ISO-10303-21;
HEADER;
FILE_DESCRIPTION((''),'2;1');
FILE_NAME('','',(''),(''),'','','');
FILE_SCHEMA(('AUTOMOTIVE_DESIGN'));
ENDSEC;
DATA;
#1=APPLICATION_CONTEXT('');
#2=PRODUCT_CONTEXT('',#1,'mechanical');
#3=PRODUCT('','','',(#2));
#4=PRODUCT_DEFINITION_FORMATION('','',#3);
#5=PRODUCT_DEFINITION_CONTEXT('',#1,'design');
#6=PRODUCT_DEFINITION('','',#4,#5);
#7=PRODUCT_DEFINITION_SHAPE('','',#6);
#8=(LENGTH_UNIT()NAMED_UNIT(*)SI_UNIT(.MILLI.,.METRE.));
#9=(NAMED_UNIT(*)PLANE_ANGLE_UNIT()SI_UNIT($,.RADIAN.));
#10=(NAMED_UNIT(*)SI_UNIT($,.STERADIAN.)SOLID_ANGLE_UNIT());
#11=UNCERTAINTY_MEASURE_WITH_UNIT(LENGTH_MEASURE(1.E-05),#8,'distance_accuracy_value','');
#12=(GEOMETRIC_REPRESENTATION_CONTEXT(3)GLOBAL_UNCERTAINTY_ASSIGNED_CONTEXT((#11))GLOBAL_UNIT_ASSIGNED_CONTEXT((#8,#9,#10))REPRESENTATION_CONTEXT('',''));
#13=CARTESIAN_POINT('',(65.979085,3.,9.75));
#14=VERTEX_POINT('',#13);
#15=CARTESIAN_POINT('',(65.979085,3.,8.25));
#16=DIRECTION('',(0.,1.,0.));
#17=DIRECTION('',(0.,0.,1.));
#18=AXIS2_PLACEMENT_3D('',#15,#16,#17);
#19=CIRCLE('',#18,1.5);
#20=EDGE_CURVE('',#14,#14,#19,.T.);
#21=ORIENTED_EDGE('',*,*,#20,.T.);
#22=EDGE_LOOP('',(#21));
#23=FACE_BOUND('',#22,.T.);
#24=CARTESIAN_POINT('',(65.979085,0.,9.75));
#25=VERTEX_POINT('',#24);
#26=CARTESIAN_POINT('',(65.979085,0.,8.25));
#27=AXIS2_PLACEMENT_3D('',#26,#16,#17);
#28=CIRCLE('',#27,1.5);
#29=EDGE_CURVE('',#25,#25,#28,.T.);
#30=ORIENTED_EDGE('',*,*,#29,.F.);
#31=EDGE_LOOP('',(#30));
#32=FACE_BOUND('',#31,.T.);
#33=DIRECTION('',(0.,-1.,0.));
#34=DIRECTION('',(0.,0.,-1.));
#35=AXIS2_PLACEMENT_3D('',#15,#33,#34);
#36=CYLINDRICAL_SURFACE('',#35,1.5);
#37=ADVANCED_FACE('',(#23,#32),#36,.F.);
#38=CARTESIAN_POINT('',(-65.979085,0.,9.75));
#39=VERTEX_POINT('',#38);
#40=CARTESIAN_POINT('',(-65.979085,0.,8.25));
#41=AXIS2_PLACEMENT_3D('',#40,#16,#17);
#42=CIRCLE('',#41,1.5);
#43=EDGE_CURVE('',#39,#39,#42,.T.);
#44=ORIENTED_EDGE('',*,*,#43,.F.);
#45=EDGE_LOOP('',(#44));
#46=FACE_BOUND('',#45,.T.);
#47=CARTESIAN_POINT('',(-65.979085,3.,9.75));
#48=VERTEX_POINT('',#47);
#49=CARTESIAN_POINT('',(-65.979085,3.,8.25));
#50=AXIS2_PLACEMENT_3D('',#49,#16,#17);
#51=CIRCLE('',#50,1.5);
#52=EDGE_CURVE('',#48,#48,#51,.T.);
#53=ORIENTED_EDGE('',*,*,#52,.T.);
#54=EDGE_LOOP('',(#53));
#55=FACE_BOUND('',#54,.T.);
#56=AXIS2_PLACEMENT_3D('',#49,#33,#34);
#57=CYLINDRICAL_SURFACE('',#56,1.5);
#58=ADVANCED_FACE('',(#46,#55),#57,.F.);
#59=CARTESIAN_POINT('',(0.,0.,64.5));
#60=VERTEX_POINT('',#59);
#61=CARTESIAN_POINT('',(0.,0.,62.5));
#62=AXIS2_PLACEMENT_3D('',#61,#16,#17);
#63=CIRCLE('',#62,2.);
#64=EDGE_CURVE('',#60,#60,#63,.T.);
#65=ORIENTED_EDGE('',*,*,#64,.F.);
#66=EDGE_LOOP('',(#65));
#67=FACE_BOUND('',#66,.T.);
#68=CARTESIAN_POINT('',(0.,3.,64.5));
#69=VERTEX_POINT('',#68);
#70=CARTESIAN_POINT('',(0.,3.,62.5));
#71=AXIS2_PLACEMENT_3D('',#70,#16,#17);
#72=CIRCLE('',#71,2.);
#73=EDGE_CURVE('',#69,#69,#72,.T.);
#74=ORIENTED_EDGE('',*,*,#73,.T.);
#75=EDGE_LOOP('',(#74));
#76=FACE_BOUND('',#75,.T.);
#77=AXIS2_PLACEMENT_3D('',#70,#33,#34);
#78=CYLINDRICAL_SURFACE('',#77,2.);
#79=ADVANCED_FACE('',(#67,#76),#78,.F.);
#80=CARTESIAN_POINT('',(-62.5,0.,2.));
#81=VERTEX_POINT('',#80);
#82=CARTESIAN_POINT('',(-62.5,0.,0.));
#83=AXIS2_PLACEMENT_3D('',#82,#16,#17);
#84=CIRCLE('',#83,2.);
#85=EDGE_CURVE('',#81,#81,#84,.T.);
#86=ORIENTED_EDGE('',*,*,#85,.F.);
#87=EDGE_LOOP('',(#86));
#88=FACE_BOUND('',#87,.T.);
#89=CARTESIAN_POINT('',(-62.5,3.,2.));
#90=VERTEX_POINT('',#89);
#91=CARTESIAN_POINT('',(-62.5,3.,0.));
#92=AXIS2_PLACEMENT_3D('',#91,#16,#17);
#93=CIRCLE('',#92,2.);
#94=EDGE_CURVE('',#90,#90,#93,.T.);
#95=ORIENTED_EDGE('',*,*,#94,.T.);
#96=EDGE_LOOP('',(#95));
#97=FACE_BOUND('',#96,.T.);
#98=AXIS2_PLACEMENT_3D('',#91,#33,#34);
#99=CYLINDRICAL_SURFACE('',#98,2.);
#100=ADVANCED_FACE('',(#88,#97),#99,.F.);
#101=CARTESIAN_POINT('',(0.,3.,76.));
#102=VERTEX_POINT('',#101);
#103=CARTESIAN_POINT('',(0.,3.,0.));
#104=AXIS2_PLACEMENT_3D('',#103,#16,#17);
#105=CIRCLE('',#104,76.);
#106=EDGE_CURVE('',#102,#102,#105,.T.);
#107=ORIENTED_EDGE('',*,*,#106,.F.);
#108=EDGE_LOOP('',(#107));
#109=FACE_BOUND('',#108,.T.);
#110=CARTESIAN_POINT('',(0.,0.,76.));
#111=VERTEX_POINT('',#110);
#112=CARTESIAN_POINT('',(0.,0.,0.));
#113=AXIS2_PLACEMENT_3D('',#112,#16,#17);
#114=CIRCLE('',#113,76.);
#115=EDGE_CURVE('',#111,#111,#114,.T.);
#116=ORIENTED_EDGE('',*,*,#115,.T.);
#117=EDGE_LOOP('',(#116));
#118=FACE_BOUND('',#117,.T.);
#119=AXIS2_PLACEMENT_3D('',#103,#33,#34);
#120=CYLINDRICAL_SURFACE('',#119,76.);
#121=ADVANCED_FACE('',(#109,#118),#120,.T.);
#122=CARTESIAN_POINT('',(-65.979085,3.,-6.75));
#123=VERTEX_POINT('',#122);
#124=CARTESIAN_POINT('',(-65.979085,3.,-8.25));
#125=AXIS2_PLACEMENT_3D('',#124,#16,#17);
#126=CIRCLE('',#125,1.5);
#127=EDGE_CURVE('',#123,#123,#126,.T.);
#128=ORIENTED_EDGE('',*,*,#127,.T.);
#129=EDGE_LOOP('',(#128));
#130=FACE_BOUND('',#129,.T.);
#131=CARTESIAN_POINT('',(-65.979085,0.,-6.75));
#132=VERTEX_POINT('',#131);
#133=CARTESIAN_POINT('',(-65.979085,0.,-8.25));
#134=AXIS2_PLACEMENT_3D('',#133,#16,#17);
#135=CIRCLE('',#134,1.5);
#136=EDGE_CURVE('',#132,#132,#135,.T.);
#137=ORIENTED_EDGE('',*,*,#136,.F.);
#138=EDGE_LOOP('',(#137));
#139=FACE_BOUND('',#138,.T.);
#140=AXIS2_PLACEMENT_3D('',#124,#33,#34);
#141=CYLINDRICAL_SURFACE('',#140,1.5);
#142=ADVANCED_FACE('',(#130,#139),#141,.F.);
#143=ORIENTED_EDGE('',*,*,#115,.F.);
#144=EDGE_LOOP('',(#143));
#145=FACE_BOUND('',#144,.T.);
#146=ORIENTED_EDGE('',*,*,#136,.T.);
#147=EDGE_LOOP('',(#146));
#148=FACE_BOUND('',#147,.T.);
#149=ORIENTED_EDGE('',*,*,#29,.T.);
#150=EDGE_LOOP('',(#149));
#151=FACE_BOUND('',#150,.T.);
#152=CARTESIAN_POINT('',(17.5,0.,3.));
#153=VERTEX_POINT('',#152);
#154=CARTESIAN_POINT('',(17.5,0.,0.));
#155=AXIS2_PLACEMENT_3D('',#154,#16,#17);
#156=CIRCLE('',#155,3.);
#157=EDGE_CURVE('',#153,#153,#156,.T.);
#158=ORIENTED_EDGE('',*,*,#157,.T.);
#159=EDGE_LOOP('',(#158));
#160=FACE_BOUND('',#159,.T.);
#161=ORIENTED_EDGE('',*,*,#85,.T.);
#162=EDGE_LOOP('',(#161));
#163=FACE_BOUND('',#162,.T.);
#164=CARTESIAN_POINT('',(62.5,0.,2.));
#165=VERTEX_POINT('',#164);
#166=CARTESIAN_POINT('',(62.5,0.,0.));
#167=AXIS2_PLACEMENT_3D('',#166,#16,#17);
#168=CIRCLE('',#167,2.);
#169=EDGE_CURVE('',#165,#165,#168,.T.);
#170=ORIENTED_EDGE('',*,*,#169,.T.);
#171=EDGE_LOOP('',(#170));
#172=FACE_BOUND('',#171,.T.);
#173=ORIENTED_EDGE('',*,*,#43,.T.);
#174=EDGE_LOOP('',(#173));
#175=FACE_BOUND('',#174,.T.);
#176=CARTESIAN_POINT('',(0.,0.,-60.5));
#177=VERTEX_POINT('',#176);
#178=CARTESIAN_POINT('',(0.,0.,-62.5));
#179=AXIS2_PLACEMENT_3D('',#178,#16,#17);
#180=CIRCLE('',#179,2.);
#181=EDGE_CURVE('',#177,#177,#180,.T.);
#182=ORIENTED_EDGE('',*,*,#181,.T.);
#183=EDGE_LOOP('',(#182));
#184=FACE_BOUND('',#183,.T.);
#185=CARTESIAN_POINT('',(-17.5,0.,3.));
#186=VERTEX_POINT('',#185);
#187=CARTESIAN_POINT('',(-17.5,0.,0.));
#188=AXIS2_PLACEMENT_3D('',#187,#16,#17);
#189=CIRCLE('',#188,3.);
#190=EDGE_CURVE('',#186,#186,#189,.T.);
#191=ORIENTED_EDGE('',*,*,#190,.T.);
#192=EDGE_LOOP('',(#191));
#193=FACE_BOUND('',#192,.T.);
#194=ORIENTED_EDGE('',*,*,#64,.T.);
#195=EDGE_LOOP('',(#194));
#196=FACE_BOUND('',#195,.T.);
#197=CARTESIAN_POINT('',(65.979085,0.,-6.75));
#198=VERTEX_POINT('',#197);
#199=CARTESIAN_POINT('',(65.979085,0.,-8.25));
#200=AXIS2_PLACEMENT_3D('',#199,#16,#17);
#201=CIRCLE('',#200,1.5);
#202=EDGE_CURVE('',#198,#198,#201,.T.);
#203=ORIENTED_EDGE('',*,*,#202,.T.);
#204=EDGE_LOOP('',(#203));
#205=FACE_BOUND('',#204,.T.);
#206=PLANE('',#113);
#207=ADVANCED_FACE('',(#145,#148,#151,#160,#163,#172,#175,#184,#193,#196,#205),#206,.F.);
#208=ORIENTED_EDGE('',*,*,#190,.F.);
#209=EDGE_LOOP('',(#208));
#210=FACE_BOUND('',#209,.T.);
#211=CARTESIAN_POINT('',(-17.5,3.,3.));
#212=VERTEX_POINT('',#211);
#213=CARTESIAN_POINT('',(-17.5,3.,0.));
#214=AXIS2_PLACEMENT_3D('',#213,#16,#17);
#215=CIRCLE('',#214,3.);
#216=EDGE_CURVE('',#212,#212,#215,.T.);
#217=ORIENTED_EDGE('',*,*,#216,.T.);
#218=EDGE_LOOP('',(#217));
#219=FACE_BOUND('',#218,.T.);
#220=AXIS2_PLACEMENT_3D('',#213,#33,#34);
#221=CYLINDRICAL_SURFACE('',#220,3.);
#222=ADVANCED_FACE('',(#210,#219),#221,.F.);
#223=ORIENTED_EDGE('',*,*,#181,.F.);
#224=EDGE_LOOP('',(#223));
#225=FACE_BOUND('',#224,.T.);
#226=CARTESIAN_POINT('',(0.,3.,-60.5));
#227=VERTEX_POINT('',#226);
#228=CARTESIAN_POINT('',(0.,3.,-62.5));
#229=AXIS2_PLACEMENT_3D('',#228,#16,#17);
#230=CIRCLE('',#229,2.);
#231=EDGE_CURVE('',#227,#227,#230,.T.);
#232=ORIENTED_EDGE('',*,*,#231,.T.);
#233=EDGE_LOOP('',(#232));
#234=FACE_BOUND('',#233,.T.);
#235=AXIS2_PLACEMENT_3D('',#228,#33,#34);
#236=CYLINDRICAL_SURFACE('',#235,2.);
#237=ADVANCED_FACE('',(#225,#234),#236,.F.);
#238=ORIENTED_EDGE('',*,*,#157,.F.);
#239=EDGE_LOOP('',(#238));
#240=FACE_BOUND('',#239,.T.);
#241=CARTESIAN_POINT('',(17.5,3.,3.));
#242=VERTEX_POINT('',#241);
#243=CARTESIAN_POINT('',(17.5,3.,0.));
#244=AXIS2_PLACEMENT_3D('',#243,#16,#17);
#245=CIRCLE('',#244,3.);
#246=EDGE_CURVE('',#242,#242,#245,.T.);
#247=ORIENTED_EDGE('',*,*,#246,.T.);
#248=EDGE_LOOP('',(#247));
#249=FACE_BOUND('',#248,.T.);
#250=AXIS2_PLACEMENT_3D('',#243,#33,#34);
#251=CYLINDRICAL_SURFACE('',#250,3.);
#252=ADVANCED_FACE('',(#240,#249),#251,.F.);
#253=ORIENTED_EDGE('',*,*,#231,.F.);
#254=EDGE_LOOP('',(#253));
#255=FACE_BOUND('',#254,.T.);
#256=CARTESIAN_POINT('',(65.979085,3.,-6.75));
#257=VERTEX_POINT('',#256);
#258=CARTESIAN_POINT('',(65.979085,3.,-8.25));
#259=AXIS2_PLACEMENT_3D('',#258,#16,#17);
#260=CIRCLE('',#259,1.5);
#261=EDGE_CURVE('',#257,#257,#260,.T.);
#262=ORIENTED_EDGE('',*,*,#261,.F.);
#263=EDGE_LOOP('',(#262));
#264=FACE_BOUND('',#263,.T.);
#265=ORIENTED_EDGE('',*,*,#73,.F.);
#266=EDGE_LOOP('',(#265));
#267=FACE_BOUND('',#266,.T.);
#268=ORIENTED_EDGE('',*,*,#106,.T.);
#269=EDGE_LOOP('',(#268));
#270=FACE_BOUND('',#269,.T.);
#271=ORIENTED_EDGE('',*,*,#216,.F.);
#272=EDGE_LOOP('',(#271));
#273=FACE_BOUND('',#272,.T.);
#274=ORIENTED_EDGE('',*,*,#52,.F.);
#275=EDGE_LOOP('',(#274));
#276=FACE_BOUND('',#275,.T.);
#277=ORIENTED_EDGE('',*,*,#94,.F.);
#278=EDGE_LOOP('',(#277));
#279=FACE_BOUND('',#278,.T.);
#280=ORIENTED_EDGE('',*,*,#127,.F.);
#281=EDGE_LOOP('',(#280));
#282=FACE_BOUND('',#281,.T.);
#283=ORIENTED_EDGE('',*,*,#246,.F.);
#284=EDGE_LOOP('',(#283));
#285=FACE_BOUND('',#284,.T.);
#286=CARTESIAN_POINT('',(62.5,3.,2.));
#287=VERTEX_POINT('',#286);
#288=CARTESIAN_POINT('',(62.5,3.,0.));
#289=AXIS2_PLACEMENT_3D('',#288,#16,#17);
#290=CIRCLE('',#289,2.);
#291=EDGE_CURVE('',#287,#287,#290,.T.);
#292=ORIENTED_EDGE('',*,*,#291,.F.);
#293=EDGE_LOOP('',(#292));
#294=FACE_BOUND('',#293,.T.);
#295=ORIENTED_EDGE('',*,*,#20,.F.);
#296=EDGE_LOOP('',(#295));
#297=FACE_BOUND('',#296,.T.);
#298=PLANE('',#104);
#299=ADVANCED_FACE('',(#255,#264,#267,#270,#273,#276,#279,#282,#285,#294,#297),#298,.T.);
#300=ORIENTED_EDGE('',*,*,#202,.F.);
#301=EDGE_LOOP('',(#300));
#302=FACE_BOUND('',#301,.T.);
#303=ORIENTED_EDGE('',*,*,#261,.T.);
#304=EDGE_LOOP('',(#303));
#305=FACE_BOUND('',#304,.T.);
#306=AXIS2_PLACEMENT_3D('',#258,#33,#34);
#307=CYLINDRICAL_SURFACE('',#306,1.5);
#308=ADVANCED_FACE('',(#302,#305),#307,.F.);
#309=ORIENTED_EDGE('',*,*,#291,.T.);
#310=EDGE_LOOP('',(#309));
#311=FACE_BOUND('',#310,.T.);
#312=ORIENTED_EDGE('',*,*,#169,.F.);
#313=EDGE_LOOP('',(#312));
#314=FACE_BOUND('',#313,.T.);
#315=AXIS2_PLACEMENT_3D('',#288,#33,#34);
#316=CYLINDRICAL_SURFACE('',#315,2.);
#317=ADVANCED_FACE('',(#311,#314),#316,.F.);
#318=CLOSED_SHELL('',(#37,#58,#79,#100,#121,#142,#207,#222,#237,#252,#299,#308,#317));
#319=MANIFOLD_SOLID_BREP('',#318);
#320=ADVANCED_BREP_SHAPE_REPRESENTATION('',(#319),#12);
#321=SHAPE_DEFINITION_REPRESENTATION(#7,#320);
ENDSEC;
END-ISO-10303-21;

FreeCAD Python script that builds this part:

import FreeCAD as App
import Part
import Sketcher

V = App.Vector

doc = App.newDocument("Part")
body = doc.addObject("PartDesign::Body", "Body")

sketch1 = doc.addObject("Sketcher::SketchObject", "Sketch")
body.addObject(sketch1)
sketch1.AttachmentSupport = (doc.XZ_Plane, [""])
sketch1.MapMode = "FlatFace"
sketch1.addGeometry(Part.Circle(V(0, 0, 0), V(0, 0, 1), 76), False)
sketch1.addGeometry(Part.Circle(V(-66, -8.2, 0), V(0, 0, 1), 1.5), False)
sketch1.addGeometry(Part.Circle(V(0, -62.5, 0), V(0, 0, 1), 2), False)
sketch1.addGeometry(Part.Circle(V(-62.5, 0, 0), V(0, 0, 1), 2), False)
sketch1.addGeometry(Part.Circle(V(-66, 8.2, 0), V(0, 0, 1), 1.5), False)
sketch1.addGeometry(Part.Circle(V(-17.5, 0, 0), V(0, 0, 1), 3), False)
sketch1.addGeometry(Part.Circle(V(66, -8.2, 0), V(0, 0, 1), 1.5), False)
sketch1.addGeometry(Part.Circle(V(17.5, 0, 0), V(0, 0, 1), 3), False)
sketch1.addGeometry(Part.Circle(V(0, 62.5, 0), V(0, 0, 1), 2), False)
sketch1.addGeometry(Part.Circle(V(62.5, 0, 0), V(0, 0, 1), 2), False)
sketch1.addGeometry(Part.Circle(V(66, 8.2, 0), V(0, 0, 1), 1.5), False)
sketch1.addConstraint(Sketcher.Constraint("Coincident", 0, 3, -1, 1))
sketch1.addConstraint(Sketcher.Constraint("Equal", 2, 3))
sketch1.addConstraint(Sketcher.Constraint("Equal", 1, 4))
sketch1.addConstraint(Sketcher.Constraint("Equal", 4, 6))
sketch1.addConstraint(Sketcher.Constraint("Equal", 5, 7))
sketch1.addConstraint(Sketcher.Constraint("Equal", 3, 8))
sketch1.addConstraint(Sketcher.Constraint("Equal", 8, 9))
sketch1.addConstraint(Sketcher.Constraint("Equal", 6, 10))
sketch1.addConstraint(Sketcher.Constraint("Symmetric", 4, 3, 6, 3, -1, 1))
sketch1.addConstraint(Sketcher.Constraint("Symmetric", 5, 3, 7, 3, -1, 1))
sketch1.addConstraint(Sketcher.Constraint("Symmetric", 2, 3, 8, 3, -1, 1))
sketch1.addConstraint(Sketcher.Constraint("Symmetric", 3, 3, 9, 3, -1, 1))
sketch1.addConstraint(Sketcher.Constraint("Symmetric", 1, 3, 10, 3, -1, 1))
sketch1.addConstraint(Sketcher.Constraint("Symmetric", 1, 3, 6, 3, -2))
sketch1.addConstraint(Sketcher.Constraint("PointOnObject", 2, 3, -2))
sketch1.addConstraint(Sketcher.Constraint("PointOnObject", 3, 3, -1))
sketch1.addConstraint(Sketcher.Constraint("PointOnObject", 5, 3, -1))
sketch1.addConstraint(Sketcher.Constraint("Diameter", 0, 152.0))
sketch1.addConstraint(Sketcher.Constraint("Diameter", 1, 3.0))
sketch1.addConstraint(Sketcher.Constraint("Diameter", 2, 4.0))
sketch1.addConstraint(Sketcher.Constraint("Diameter", 5, 6.0))
sketch1.addConstraint(Sketcher.Constraint("DistanceX", 3, 3, 5, 3, 45.0))
sketch1.addConstraint(Sketcher.Constraint("DistanceX", 5, 3, 7, 3, 35.0))
sketch1.addConstraint(Sketcher.Constraint("DistanceY", 2, 3, -1, 1, 62.5))
sketch1.addConstraint(Sketcher.Constraint("DistanceY", 1, 3, 4, 3, 16.5))
sketch1.addConstraint(Sketcher.Constraint("DistanceX", 1, 3, 6, 3, 131.958171))
pad1 = doc.addObject("PartDesign::Pad", "Pad")
body.addObject(pad1)
pad1.Profile = sketch1
pad1.Length = 3
pad1.Reversed = True

doc.recompute()
